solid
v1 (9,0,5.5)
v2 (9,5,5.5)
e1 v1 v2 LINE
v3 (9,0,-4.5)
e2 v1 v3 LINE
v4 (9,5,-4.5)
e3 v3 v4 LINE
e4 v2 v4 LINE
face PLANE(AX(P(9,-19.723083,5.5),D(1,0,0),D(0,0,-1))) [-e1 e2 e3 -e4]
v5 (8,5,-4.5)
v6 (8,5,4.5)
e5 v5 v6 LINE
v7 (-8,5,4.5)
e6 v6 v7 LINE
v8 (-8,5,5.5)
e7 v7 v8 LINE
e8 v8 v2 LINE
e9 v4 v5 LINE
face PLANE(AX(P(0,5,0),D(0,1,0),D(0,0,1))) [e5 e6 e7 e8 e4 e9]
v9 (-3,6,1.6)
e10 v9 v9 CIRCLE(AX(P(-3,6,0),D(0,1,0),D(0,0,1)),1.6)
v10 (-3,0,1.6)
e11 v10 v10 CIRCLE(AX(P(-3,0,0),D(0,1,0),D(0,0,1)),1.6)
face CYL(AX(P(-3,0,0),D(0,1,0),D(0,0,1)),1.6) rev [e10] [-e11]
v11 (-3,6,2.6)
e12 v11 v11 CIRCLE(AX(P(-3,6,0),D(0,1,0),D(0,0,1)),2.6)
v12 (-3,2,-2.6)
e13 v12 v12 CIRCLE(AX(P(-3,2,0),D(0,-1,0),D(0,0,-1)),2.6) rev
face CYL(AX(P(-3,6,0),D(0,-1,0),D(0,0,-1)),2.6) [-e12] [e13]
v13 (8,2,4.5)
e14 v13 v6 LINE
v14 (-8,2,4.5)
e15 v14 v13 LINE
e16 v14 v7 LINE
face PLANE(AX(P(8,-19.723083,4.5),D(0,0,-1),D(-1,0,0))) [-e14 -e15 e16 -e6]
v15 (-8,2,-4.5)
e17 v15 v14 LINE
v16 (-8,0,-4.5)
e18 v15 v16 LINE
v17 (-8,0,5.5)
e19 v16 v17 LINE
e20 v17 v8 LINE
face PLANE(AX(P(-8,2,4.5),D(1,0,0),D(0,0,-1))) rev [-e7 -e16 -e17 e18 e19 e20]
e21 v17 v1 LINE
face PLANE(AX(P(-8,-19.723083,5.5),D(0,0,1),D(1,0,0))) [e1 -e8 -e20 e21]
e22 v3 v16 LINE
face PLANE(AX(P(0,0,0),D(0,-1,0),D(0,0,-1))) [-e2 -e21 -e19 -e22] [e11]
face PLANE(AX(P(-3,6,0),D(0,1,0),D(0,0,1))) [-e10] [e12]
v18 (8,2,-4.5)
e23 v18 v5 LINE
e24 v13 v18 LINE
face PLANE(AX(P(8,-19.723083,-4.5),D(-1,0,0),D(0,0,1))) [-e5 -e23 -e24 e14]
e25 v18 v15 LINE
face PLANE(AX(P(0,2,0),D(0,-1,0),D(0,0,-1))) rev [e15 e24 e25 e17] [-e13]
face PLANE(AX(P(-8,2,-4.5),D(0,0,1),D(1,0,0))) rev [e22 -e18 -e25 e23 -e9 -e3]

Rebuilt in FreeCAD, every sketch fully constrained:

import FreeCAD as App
import Part
import Sketcher

V = App.Vector

doc = App.newDocument("Part")
params = doc.addObject("Spreadsheet::Sheet", "Params")
for row, (alias, value) in enumerate([
    ("sketch1_width", "16 mm"),
    ("sketch1_height", "9 mm"),
    ("pad1_length", "2 mm"),
    ("sketch2_diameter", "5.2 mm"),
    ("pad2_length", "4 mm"),
    ("sketch3_width", "17 mm"),
    ("sketch3_width2", "1 mm"),
    ("sketch3_height", "10 mm"),
    ("pad3_length", "3 mm"),
    ("pad3_length2", "2 mm"),
    ("sketch4_diameter", "3.2 mm"),
], start=1):
    params.set(f"A{row}", alias)
    params.set(f"B{row}", "=" + value)
    params.setAlias(f"B{row}", alias)

body = doc.addObject("PartDesign::Body", "Body")

sketch1 = body.newObject("Sketcher::SketchObject", "Sketch")
sketch1.AttachmentSupport = (doc.getObject("XZ_Plane"), [""])
sketch1.MapMode = "FlatFace"
sketch1.addGeometry(Part.LineSegment(V(-8, -4, 0), V(-8, 4, 0)), False)
sketch1.addGeometry(Part.LineSegment(V(-8, 4, 0), V(8, 4, 0)), False)
sketch1.addGeometry(Part.LineSegment(V(8, 4, 0), V(8, -4, 0)), False)
sketch1.addGeometry(Part.LineSegment(V(8, -4, 0), V(-8, -4, 0)), False)
sketch1.addConstraint(Sketcher.Constraint("Coincident", 0, 2, 1, 1))
sketch1.addConstraint(Sketcher.Constraint("Coincident", 1, 2, 2, 1))
sketch1.addConstraint(Sketcher.Constraint("Coincident", 2, 2, 3, 1))
sketch1.addConstraint(Sketcher.Constraint("Coincident", 3, 2, 0, 1))
sketch1.addConstraint(Sketcher.Constraint("Vertical", 0))
sketch1.addConstraint(Sketcher.Constraint("Horizontal", 1))
sketch1.addConstraint(Sketcher.Constraint("Vertical", 2))
sketch1.addConstraint(Sketcher.Constraint("Horizontal", 3))
sketch1.addConstraint(Sketcher.Constraint("Symmetric", 0, 2, 2, 2, -1, 1))
sketch1.addConstraint(Sketcher.Constraint("DistanceX", 1, 1, 1, 2, 16.0))
sketch1.addConstraint(Sketcher.Constraint("DistanceY", 0, 1, 0, 2, 9.0))
sketch1.setExpression("Constraints[9]", "Params.sketch1_width")
sketch1.setExpression("Constraints[10]", "Params.sketch1_height")
pad1 = body.newObject("PartDesign::Pad", "Pad")
pad1.Profile = sketch1
pad1.setExpression("Length", "Params.pad1_length")
pad1.Reversed = True

sketch2 = body.newObject("Sketcher::SketchObject", "Sketch001")
sketch2.AttachmentSupport = (doc.getObject("XZ_Plane"), [""])
sketch2.MapMode = "FlatFace"
sketch2.AttachmentOffset = App.Placement(V(0, 0, -2), App.Rotation())
sketch2.addGeometry(Part.Circle(V(-3, 0, 0), V(0, 0, 1), 2.6), False)
sketch2.addConstraint(Sketcher.Constraint("PointOnObject", 0, 3, -1))
sketch2.addConstraint(Sketcher.Constraint("Diameter", 0, 5.2))
sketch2.addConstraint(Sketcher.Constraint("DistanceX", 0, 3, -1, 1, 3.0))
sketch2.setExpression("Constraints[1]", "Params.sketch2_diameter")
pad2 = body.newObject("PartDesign::Pad", "Pad001")
pad2.Profile = sketch2
pad2.setExpression("Length", "Params.pad2_length")
pad2.Reversed = True

sketch3 = body.newObject("Sketcher::SketchObject", "Sketch002")
sketch3.AttachmentSupport = (doc.getObject("XZ_Plane"), [""])
sketch3.MapMode = "FlatFace"
sketch3.AttachmentOffset = App.Placement(V(0, 0, -2), App.Rotation())
sketch3.addGeometry(Part.LineSegment(V(-8, 4.5, 0), V(-8, 5.5, 0)), False)
sketch3.addGeometry(Part.LineSegment(V(-8, 5.5, 0), V(9, 5.5, 0)), False)
sketch3.addGeometry(Part.LineSegment(V(9, 5.5, 0), V(9, -4.5, 0)), False)
sketch3.addGeometry(Part.LineSegment(V(9, -4.5, 0), V(8, -4.5, 0)), False)
sketch3.addGeometry(Part.LineSegment(V(8, -4.5, 0), V(8, 4.5, 0)), False)
sketch3.addGeometry(Part.LineSegment(V(8, 4.5, 0), V(-8, 4.5, 0)), False)
sketch3.addConstraint(Sketcher.Constraint("Coincident", 0, 2, 1, 1))
sketch3.addConstraint(Sketcher.Constraint("Coincident", 1, 2, 2, 1))
sketch3.addConstraint(Sketcher.Constraint("Coincident", 2, 2, 3, 1))
sketch3.addConstraint(Sketcher.Constraint("Coincident", 3, 2, 4, 1))
sketch3.addConstraint(Sketcher.Constraint("Coincident", 4, 2, 5, 1))
sketch3.addConstraint(Sketcher.Constraint("Coincident", 5, 2, 0, 1))
sketch3.addConstraint(Sketcher.Constraint("Vertical", 0))
sketch3.addConstraint(Sketcher.Constraint("Horizontal", 1))
sketch3.addConstraint(Sketcher.Constraint("Vertical", 2))
sketch3.addConstraint(Sketcher.Constraint("Horizontal", 3))
sketch3.addConstraint(Sketcher.Constraint("Vertical", 4))
sketch3.addConstraint(Sketcher.Constraint("Horizontal", 5))
sketch3.addConstraint(Sketcher.Constraint("Symmetric", 3, 2, 5, 2, -1, 1))
sketch3.addConstraint(Sketcher.Constraint("Equal", 3, 0))
sketch3.addConstraint(Sketcher.Constraint("DistanceX", 1, 1, 1, 2, 17.0))
sketch3.addConstraint(Sketcher.Constraint("DistanceX", 3, 2, 3, 1, 1.0))
sketch3.addConstraint(Sketcher.Constraint("DistanceY", 2, 2, 2, 1, 10.0))
sketch3.setExpression("Constraints[14]", "Params.sketch3_width")
sketch3.setExpression("Constraints[15]", "Params.sketch3_width2")
sketch3.setExpression("Constraints[16]", "Params.sketch3_height")
pad3 = body.newObject("PartDesign::Pad", "Pad002")
pad3.Profile = sketch3
pad3.Type = "TwoLengths"
pad3.setExpression("Length", "Params.pad3_length")
pad3.setExpression("Length2", "Params.pad3_length2")
pad3.Reversed = True

sketch4 = body.newObject("Sketcher::SketchObject", "Sketch003")
sketch4.AttachmentSupport = (doc.getObject("XZ_Plane"), [""])
sketch4.MapMode = "FlatFace"
sketch4.AttachmentOffset = App.Placement(V(0, 0, -6), App.Rotation())
sketch4.addGeometry(Part.Circle(V(-3, 0, 0), V(0, 0, 1), 1.6), False)
sketch4.addConstraint(Sketcher.Constraint("PointOnObject", 0, 3, -1))
sketch4.addConstraint(Sketcher.Constraint("Diameter", 0, 3.2))
sketch4.addConstraint(Sketcher.Constraint("DistanceX", 0, 3, -1, 1, 3.0))
sketch4.setExpression("Constraints[1]", "Params.sketch4_diameter")
pocket1 = body.newObject("PartDesign::Pocket", "Pocket")
pocket1.Profile = sketch4
pocket1.Type = "ThroughAll"
pocket1.Reversed = True

doc.recompute()
